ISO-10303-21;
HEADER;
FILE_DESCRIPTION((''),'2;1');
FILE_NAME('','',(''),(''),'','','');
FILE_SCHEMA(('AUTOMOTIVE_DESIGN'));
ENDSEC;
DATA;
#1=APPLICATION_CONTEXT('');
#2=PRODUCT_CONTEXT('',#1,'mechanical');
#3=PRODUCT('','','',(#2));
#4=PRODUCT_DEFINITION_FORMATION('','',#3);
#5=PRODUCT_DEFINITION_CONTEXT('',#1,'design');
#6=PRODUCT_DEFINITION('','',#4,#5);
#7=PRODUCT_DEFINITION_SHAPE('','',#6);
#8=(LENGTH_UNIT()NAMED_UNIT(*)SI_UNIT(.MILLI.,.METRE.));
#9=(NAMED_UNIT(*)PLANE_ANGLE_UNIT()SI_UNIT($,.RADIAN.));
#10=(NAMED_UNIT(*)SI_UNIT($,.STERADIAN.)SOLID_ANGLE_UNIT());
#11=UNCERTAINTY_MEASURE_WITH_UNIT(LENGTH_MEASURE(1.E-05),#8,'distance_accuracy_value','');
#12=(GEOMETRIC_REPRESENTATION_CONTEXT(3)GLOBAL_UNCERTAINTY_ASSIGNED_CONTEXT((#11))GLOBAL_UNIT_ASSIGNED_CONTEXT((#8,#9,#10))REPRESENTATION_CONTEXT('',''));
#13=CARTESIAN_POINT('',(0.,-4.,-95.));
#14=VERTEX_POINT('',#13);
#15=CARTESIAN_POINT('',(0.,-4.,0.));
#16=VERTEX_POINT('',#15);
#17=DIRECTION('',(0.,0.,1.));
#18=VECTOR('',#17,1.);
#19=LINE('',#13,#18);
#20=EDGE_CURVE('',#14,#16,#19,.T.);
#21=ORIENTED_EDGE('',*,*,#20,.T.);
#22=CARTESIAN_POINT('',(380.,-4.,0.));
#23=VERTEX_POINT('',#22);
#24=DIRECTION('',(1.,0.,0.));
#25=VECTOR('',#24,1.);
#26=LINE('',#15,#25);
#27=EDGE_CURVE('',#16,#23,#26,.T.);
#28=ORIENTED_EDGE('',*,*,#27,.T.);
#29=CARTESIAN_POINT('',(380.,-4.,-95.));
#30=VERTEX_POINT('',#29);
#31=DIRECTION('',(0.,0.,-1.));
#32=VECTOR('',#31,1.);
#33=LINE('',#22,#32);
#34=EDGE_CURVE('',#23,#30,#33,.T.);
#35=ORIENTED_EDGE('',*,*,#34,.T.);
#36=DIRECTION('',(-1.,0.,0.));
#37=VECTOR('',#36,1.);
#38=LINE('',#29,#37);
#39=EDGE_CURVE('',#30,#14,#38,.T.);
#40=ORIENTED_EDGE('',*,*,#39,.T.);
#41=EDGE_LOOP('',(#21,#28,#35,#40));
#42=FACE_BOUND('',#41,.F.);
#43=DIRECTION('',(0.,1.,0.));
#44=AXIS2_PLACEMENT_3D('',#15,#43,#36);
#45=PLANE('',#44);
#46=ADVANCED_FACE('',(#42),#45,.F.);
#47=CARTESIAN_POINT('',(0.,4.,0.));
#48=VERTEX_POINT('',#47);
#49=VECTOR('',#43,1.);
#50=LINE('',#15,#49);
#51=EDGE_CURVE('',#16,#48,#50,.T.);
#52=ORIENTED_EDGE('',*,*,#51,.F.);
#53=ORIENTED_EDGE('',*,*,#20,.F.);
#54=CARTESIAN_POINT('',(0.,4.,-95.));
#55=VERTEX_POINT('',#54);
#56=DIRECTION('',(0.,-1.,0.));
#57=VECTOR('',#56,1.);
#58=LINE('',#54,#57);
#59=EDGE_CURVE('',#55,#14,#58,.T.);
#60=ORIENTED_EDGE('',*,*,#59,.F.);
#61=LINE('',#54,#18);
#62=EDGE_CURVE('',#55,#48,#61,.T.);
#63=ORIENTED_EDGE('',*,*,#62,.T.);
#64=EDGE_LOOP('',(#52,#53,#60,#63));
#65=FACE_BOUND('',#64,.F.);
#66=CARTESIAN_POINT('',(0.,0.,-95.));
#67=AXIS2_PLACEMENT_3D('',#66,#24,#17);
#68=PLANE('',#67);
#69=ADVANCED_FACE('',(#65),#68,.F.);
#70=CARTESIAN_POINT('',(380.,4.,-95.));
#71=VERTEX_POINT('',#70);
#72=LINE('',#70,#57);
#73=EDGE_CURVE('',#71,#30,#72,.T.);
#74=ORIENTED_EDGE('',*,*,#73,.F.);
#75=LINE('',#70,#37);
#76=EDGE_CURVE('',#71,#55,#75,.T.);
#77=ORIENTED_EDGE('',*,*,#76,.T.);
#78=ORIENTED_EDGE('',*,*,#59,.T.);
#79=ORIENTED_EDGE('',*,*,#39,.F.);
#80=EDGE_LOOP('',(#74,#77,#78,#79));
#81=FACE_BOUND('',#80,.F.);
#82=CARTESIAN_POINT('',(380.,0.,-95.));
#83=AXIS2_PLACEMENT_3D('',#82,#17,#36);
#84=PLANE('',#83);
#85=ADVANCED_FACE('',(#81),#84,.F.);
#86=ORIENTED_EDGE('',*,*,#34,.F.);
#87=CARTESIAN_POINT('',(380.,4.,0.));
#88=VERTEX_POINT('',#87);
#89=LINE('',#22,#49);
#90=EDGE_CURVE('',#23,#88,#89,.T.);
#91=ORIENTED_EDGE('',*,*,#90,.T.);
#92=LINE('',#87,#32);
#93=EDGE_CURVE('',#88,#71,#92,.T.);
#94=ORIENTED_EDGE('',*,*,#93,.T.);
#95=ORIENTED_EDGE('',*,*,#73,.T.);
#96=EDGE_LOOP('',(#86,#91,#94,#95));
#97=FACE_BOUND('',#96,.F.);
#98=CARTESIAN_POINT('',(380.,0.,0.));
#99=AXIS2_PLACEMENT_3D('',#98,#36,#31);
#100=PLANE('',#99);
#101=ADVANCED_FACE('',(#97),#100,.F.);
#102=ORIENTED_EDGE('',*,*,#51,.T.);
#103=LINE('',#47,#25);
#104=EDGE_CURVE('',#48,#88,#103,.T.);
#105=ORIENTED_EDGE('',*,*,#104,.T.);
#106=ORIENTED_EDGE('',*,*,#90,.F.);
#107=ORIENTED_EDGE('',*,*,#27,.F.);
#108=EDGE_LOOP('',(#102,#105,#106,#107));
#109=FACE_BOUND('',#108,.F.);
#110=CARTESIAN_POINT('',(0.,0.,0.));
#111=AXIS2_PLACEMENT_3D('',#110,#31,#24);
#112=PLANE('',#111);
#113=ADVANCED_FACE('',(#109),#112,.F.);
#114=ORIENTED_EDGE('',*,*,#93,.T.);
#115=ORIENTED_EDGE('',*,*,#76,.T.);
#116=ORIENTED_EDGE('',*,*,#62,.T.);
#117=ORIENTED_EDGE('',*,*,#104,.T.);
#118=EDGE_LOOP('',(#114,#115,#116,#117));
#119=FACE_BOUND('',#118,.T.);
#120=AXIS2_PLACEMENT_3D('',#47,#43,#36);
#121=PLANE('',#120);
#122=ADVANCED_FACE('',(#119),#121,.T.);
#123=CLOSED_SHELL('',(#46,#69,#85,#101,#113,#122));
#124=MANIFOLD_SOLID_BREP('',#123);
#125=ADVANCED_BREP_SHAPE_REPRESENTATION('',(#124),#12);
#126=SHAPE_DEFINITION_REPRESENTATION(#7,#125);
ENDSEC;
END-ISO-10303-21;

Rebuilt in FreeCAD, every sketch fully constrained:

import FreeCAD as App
import Part
import Sketcher

V = App.Vector

doc = App.newDocument("Part")
body = doc.addObject("PartDesign::Body", "Body")

sketch1 = body.newObject("Sketcher::SketchObject", "Sketch")
sketch1.AttachmentSupport = (doc.getObject("XZ_Plane"), [""])
sketch1.MapMode = "FlatFace"
sketch1.addGeometry(Part.LineSegment(V(0, -95, 0), V(0, 0, 0)), False)
sketch1.addGeometry(Part.LineSegment(V(0, 0, 0), V(380, 0, 0)), False)
sketch1.addGeometry(Part.LineSegment(V(380, 0, 0), V(380, -95, 0)), False)
sketch1.addGeometry(Part.LineSegment(V(380, -95, 0), V(0, -95, 0)), False)
sketch1.addConstraint(Sketcher.Constraint("Coincident", 0, 2, 1, 1))
sketch1.addConstraint(Sketcher.Constraint("Coincident", 1, 2, 2, 1))
sketch1.addConstraint(Sketcher.Constraint("Coincident", 2, 2, 3, 1))
sketch1.addConstraint(Sketcher.Constraint("Coincident", 3, 2, 0, 1))
sketch1.addConstraint(Sketcher.Constraint("Vertical", 0))
sketch1.addConstraint(Sketcher.Constraint("Horizontal", 1))
sketch1.addConstraint(Sketcher.Constraint("Vertical", 2))
sketch1.addConstraint(Sketcher.Constraint("Horizontal", 3))
sketch1.addConstraint(Sketcher.Constraint("Coincident", 0, 2, -1, 1))
sketch1.addConstraint(Sketcher.Constraint("DistanceX", 1, 1, 1, 2, 380.0))
sketch1.addConstraint(Sketcher.Constraint("DistanceY", 0, 1, 0, 2, 95.0))
pad1 = body.newObject("PartDesign::Pad", "Pad")
pad1.Profile = sketch1
pad1.Length = 8
pad1.Midplane = True

doc.recompute()
